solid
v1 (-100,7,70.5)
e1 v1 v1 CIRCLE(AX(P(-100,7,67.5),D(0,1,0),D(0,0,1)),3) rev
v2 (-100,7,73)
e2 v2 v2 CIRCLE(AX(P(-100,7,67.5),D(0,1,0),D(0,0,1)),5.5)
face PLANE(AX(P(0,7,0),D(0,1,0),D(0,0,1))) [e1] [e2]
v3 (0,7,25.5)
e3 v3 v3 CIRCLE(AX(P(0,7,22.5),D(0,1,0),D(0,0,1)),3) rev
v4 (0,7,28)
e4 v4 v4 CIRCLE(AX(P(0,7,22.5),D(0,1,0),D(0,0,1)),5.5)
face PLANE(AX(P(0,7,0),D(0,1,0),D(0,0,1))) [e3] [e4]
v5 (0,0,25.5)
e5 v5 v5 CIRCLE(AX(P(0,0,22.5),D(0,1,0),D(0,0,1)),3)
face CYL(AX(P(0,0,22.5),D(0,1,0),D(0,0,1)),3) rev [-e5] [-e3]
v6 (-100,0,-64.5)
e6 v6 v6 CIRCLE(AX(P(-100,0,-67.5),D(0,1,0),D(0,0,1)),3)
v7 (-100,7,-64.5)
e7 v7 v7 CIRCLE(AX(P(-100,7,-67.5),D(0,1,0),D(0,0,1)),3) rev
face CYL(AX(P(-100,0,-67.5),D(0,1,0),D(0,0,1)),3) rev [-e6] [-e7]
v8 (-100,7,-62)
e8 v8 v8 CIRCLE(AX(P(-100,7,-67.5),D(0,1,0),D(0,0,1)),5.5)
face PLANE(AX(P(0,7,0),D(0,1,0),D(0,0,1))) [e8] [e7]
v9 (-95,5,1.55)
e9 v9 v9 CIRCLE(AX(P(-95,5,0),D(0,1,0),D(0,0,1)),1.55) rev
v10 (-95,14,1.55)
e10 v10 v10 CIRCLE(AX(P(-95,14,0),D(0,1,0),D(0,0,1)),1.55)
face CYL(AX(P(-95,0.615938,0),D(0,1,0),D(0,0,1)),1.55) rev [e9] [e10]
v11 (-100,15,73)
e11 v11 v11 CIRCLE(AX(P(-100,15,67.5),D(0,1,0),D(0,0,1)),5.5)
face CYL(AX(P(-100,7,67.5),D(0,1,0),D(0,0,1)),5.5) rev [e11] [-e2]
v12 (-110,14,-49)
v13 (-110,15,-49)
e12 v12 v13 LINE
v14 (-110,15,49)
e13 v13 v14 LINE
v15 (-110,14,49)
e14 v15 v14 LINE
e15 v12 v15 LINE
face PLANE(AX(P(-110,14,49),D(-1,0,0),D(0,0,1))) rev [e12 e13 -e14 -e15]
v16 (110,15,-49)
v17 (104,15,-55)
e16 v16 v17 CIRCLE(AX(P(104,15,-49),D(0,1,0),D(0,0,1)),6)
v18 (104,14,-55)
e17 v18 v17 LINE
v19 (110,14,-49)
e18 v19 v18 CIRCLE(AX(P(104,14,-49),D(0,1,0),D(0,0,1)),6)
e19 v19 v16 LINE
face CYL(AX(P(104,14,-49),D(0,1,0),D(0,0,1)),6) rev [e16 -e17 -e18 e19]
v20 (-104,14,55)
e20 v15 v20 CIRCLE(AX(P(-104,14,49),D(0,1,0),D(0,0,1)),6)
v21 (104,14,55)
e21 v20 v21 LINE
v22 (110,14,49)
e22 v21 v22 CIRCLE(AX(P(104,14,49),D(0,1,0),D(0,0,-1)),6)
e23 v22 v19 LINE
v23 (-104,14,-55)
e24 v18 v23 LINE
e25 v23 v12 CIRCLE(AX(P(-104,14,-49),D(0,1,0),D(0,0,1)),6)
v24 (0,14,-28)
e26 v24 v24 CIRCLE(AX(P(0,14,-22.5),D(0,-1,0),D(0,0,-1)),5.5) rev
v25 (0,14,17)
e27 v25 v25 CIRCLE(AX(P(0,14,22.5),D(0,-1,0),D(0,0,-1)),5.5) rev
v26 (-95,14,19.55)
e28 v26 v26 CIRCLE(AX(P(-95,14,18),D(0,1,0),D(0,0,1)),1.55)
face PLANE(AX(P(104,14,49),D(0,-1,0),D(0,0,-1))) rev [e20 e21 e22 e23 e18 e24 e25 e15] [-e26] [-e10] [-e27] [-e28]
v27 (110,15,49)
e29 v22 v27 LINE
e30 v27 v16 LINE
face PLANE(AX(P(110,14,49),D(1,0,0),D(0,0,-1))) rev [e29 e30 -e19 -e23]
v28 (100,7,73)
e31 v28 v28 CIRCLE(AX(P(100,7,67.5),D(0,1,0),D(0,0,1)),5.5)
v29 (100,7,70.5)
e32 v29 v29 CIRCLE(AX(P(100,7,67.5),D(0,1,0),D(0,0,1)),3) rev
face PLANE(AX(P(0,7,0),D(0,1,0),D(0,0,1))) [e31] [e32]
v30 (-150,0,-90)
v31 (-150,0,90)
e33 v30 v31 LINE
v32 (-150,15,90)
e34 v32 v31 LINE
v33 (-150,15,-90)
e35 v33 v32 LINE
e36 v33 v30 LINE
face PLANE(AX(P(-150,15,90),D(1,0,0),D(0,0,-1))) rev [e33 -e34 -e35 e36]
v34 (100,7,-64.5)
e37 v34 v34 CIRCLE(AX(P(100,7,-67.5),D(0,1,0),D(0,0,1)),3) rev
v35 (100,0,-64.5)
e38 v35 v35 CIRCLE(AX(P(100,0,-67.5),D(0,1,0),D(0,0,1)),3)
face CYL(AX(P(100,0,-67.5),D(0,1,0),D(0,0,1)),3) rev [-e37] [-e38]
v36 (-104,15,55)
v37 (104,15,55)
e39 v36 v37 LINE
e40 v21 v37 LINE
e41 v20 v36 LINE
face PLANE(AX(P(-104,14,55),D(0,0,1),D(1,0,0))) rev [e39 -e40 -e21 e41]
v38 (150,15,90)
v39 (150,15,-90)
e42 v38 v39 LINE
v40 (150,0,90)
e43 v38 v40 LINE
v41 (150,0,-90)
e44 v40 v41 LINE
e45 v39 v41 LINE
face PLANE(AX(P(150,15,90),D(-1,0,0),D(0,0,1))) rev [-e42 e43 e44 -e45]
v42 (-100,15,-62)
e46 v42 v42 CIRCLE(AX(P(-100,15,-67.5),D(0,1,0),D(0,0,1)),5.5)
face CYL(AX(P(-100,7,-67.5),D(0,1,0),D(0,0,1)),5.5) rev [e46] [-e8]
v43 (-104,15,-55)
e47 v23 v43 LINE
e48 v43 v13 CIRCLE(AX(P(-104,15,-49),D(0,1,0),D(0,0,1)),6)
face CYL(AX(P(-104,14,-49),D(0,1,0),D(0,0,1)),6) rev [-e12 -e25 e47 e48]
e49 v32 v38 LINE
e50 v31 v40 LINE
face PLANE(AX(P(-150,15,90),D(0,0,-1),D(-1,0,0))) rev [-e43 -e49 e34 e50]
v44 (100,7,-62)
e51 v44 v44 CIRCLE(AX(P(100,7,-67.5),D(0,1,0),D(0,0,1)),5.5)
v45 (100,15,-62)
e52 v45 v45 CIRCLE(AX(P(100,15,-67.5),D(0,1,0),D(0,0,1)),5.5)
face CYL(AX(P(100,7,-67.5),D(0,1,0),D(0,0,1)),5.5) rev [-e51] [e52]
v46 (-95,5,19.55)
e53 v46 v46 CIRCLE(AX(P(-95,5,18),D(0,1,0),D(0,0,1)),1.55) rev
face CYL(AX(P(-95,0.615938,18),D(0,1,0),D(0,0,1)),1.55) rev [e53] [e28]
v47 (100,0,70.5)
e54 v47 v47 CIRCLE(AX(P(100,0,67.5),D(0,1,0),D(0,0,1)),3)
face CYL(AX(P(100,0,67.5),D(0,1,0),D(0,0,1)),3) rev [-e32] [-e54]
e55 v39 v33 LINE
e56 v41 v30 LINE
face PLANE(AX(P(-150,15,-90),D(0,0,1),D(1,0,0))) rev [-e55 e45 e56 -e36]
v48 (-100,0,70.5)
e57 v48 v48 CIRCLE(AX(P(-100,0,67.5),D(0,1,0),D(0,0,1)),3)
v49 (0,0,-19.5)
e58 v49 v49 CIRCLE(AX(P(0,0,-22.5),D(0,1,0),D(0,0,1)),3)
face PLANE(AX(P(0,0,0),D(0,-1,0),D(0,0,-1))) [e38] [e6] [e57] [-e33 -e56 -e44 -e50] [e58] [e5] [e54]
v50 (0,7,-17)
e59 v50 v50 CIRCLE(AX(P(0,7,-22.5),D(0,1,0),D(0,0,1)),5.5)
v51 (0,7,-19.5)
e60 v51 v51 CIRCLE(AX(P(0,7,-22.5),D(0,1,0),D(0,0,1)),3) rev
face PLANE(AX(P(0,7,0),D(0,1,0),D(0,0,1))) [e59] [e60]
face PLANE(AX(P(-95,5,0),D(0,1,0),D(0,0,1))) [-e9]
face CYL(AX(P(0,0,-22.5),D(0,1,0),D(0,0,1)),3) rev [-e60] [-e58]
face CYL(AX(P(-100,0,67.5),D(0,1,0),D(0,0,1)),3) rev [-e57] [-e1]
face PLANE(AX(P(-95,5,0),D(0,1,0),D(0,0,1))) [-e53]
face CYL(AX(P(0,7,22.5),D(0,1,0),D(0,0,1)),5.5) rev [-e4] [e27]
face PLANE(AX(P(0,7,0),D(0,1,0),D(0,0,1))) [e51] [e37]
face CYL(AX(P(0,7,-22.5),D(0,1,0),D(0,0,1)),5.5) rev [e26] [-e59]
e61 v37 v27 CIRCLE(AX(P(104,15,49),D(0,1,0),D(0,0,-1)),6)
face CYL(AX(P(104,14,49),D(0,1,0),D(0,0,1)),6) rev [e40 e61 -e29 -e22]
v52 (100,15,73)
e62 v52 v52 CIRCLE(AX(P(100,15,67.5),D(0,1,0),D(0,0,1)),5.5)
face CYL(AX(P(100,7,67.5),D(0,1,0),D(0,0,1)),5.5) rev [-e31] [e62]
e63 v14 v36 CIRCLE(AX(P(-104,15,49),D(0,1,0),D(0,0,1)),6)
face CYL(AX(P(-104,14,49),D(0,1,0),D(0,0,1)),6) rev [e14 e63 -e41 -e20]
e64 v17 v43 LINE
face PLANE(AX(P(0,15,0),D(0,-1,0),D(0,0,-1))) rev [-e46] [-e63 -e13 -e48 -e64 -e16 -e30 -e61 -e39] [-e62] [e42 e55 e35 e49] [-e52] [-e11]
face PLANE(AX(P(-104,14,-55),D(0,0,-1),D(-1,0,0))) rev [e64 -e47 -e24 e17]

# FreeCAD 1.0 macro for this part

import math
import FreeCAD as App
import Part
import Sketcher


def add_polygon(sketch, points):
    """Adds a closed chain of lines whose ends are joined by coincident constraints."""
    first, n = sketch.GeometryCount, len(points)
    for a, b in zip(points, points[1:] + points[:1]):
        sketch.addGeometry(Part.LineSegment(App.Vector(*a, 0), App.Vector(*b, 0)), False)
    for i in range(n):
        sketch.addConstraint(Sketcher.Constraint("Coincident", first + i, 2, first + (i + 1) % n, 1))

doc = App.newDocument("Part")
body = doc.addObject("PartDesign::Body", "Body")

sketch1 = body.newObject("Sketcher::SketchObject", "Sketch")
sketch1.AttachmentSupport = (doc.getObject("XZ_Plane"), [""])
sketch1.MapMode = "FlatFace"
add_polygon(sketch1, [(-150, -90), (-150, 90), (150, 90), (150, -90)])
sketch1.addConstraint([
    Sketcher.Constraint("Vertical", 0),
    Sketcher.Constraint("Horizontal", 1),
    Sketcher.Constraint("Vertical", 2),
    Sketcher.Constraint("Horizontal", 3),
    Sketcher.Constraint("Symmetric", 0, 2, 2, 2, -1, 1),
    Sketcher.Constraint("DistanceX", 1, 1, 1, 2, 300.0),
    Sketcher.Constraint("DistanceY", 0, 1, 0, 2, 180.0),
])
pad1 = body.newObject("PartDesign::Pad", "Pad")
pad1.Profile = sketch1
pad1.Length = 15
pad1.Reversed = True

sketch2 = body.newObject("Sketcher::SketchObject", "Sketch001")
sketch2.AttachmentSupport = (doc.getObject("XZ_Plane"), [""])
sketch2.MapMode = "FlatFace"
sketch2.AttachmentOffset = App.Placement(App.Vector(0, 0, -15), App.Rotation())
sketch2.addGeometry([
    Part.Circle(App.Vector(0, 22.5, 0), App.Vector(0, 0, 1), 3),
    Part.Circle(App.Vector(-100, 67.5, 0), App.Vector(0, 0, 1), 3),
    Part.Circle(App.Vector(100, 67.5, 0), App.Vector(0, 0, 1), 3),
    Part.Circle(App.Vector(100, -67.5, 0), App.Vector(0, 0, 1), 3),
    Part.Circle(App.Vector(0, -22.5, 0), App.Vector(0, 0, 1), 3),
    Part.Circle(App.Vector(-100, -67.5, 0), App.Vector(0, 0, 1), 3),
], False)
sketch2.addConstraint([
    Sketcher.Constraint("Equal", 0, 1),
    Sketcher.Constraint("Equal", 1, 2),
    Sketcher.Constraint("Equal", 2, 3),
    Sketcher.Constraint("Equal", 3, 4),
    Sketcher.Constraint("Equal", 4, 5),
    Sketcher.Constraint("Symmetric", 1, 3, 3, 3, -1, 1),
    Sketcher.Constraint("Symmetric", 0, 3, 4, 3, -1, 1),
    Sketcher.Constraint("Symmetric", 2, 3, 5, 3, -1, 1),
    Sketcher.Constraint("Symmetric", 1, 3, 2, 3, -2),
    Sketcher.Constraint("PointOnObject", 0, 3, -2),
    Sketcher.Constraint("Diameter", 0, 6.0),
    Sketcher.Constraint("DistanceX", 1, 3, -1, 1, 100.0),
    Sketcher.Constraint("DistanceY", 0, 3, 1, 3, 45.0),
    Sketcher.Constraint("DistanceY", 3, 3, 0, 3, 90.0),
])
pocket1 = body.newObject("PartDesign::Pocket", "Pocket")
pocket1.Profile = sketch2
pocket1.Length = 176.570499
pocket1.Reversed = True

sketch3 = body.newObject("Sketcher::SketchObject", "Sketch002")
sketch3.AttachmentSupport = (doc.getObject("XZ_Plane"), [""])
sketch3.MapMode = "FlatFace"
sketch3.AttachmentOffset = App.Placement(App.Vector(0, 0, -15), App.Rotation())
sketch3.addGeometry([
    Part.Circle(App.Vector(0, 22.5, 0), App.Vector(0, 0, 1), 5.5),
    Part.Circle(App.Vector(0, 22.5, 0), App.Vector(0, 0, 1), 3),
    Part.Circle(App.Vector(-100, 67.5, 0), App.Vector(0, 0, 1), 5.5),
    Part.Circle(App.Vector(-100, 67.5, 0), App.Vector(0, 0, 1), 3),
    Part.Circle(App.Vector(100, 67.5, 0), App.Vector(0, 0, 1), 5.5),
    Part.Circle(App.Vector(100, 67.5, 0), App.Vector(0, 0, 1), 3),
    Part.Circle(App.Vector(0, -22.5, 0), App.Vector(0, 0, 1), 5.5),
    Part.Circle(App.Vector(0, -22.5, 0), App.Vector(0, 0, 1), 3),
    Part.Circle(App.Vector(-100, -67.5, 0), App.Vector(0, 0, 1), 5.5),
    Part.Circle(App.Vector(-100, -67.5, 0), App.Vector(0, 0, 1), 3),
    Part.Circle(App.Vector(100, -67.5, 0), App.Vector(0, 0, 1), 5.5),
    Part.Circle(App.Vector(100, -67.5, 0), App.Vector(0, 0, 1), 3),
], False)
sketch3.addConstraint([
    Sketcher.Constraint("Coincident", 1, 3, 0, 3),
    Sketcher.Constraint("Coincident", 3, 3, 2, 3),
    Sketcher.Constraint("Coincident", 5, 3, 4, 3),
    Sketcher.Constraint("Coincident", 7, 3, 6, 3),
    Sketcher.Constraint("Coincident", 9, 3, 8, 3),
    Sketcher.Constraint("Coincident", 11, 3, 10, 3),
    Sketcher.Constraint("Equal", 0, 2),
    Sketcher.Constraint("Equal", 1, 3),
    Sketcher.Constraint("Equal", 2, 4),
    Sketcher.Constraint("Equal", 3, 5),
    Sketcher.Constraint("Equal", 4, 6),
    Sketcher.Constraint("Equal", 5, 7),
    Sketcher.Constraint("Equal", 6, 8),
    Sketcher.Constraint("Equal", 7, 9),
    Sketcher.Constraint("Equal", 8, 10),
    Sketcher.Constraint("Equal", 9, 11),
    Sketcher.Constraint("Symmetric", 0, 3, 6, 3, -1, 1),
    Sketcher.Constraint("Symmetric", 4, 3, 8, 3, -1, 1),
    Sketcher.Constraint("Symmetric", 2, 3, 10, 3, -1, 1),
    Sketcher.Constraint("Symmetric", 2, 3, 4, 3, -2),
    Sketcher.Constraint("PointOnObject", 0, 3, -2),
    Sketcher.Constraint("Diameter", 0, 11.0),
    Sketcher.Constraint("Diameter", 1, 6.0),
    Sketcher.Constraint("DistanceX", 2, 3, -1, 1, 100.0),
    Sketcher.Constraint("DistanceY", 0, 3, 2, 3, 45.0),
    Sketcher.Constraint("DistanceY", 6, 3, 0, 3, 45.0),
])
pocket2 = body.newObject("PartDesign::Pocket", "Pocket001")
pocket2.Profile = sketch3
pocket2.Length = 8
pocket2.Reversed = True

sketch4 = body.newObject("Sketcher::SketchObject", "Sketch003")
sketch4.AttachmentSupport = (doc.getObject("XZ_Plane"), [""])
sketch4.MapMode = "FlatFace"
sketch4.AttachmentOffset = App.Placement(App.Vector(0, 0, -15), App.Rotation())
sketch4.addGeometry([
    Part.LineSegment(App.Vector(-110, -49, 0), App.Vector(-110, 49, 0)),
    Part.ArcOfCircle(Part.Circle(App.Vector(-104, 49, 0), App.Vector(0, 0, 1), 6), math.radians(90), math.radians(180)),
    Part.LineSegment(App.Vector(-104, 55, 0), App.Vector(104, 55, 0)),
    Part.ArcOfCircle(Part.Circle(App.Vector(104, 49, 0), App.Vector(0, 0, 1), 6), math.radians(0), math.radians(90)),
    Part.LineSegment(App.Vector(110, 49, 0), App.Vector(110, -49, 0)),
    Part.ArcOfCircle(Part.Circle(App.Vector(104, -49, 0), App.Vector(0, 0, 1), 6), math.radians(-90), math.radians(0)),
    Part.LineSegment(App.Vector(104, -55, 0), App.Vector(-104, -55, 0)),
    Part.ArcOfCircle(Part.Circle(App.Vector(-104, -49, 0), App.Vector(0, 0, 1), 6), math.radians(180), math.radians(270)),
], False)
sketch4.addConstraint([
    Sketcher.Constraint("Tangent", 0, 2, 1, 2),
    Sketcher.Constraint("Tangent", 1, 1, 2, 1),
    Sketcher.Constraint("Tangent", 2, 2, 3, 2),
    Sketcher.Constraint("Tangent", 3, 1, 4, 1),
    Sketcher.Constraint("Tangent", 4, 2, 5, 2),
    Sketcher.Constraint("Tangent", 5, 1, 6, 1),
    Sketcher.Constraint("Tangent", 6, 2, 7, 2),
    Sketcher.Constraint("Tangent", 7, 1, 0, 1),
    Sketcher.Constraint("Vertical", 0),
    Sketcher.Constraint("Horizontal", 2),
    Sketcher.Constraint("Vertical", 4),
    Sketcher.Constraint("Horizontal", 6),
    Sketcher.Constraint("Equal", 1, 3),
    Sketcher.Constraint("Equal", 3, 5),
    Sketcher.Constraint("Equal", 5, 7),
    Sketcher.Constraint("Symmetric", 1, 3, 5, 3, -1, 1),
    Sketcher.Constraint("Radius", 1, 6.0),
    Sketcher.Constraint("DistanceX", 2, 1, 2, 2, 208.0),
    Sketcher.Constraint("DistanceY", 0, 1, 0, 2, 98.0),
])
pocket3 = body.newObject("PartDesign::Pocket", "Pocket002")
pocket3.Profile = sketch4
pocket3.Length = 1
pocket3.Reversed = True

sketch5 = body.newObject("Sketcher::SketchObject", "Sketch004")
sketch5.AttachmentSupport = (doc.getObject("XZ_Plane"), [""])
sketch5.MapMode = "FlatFace"
sketch5.AttachmentOffset = App.Placement(App.Vector(0, 0, -5), App.Rotation())
sketch5.addGeometry([
    Part.Circle(App.Vector(-95, 18, 0), App.Vector(0, 0, 1), 1.6),
    Part.Circle(App.Vector(-95, 0, 0), App.Vector(0, 0, 1), 1.6),
], False)
sketch5.addConstraint([
    Sketcher.Constraint("Equal", 0, 1),
    Sketcher.Constraint("PointOnObject", 1, 3, -1),
    Sketcher.Constraint("Vertical", 0, 3, 1, 3),
    Sketcher.Constraint("Diameter", 0, 3.1),
    Sketcher.Constraint("DistanceX", 0, 3, -1, 1, 95.0),
    Sketcher.Constraint("DistanceY", -1, 1, 0, 3, 18.0),
])
pocket4 = body.newObject("PartDesign::Pocket", "Pocket003")
pocket4.Profile = sketch5
pocket4.Length = 9

doc.recompute()
